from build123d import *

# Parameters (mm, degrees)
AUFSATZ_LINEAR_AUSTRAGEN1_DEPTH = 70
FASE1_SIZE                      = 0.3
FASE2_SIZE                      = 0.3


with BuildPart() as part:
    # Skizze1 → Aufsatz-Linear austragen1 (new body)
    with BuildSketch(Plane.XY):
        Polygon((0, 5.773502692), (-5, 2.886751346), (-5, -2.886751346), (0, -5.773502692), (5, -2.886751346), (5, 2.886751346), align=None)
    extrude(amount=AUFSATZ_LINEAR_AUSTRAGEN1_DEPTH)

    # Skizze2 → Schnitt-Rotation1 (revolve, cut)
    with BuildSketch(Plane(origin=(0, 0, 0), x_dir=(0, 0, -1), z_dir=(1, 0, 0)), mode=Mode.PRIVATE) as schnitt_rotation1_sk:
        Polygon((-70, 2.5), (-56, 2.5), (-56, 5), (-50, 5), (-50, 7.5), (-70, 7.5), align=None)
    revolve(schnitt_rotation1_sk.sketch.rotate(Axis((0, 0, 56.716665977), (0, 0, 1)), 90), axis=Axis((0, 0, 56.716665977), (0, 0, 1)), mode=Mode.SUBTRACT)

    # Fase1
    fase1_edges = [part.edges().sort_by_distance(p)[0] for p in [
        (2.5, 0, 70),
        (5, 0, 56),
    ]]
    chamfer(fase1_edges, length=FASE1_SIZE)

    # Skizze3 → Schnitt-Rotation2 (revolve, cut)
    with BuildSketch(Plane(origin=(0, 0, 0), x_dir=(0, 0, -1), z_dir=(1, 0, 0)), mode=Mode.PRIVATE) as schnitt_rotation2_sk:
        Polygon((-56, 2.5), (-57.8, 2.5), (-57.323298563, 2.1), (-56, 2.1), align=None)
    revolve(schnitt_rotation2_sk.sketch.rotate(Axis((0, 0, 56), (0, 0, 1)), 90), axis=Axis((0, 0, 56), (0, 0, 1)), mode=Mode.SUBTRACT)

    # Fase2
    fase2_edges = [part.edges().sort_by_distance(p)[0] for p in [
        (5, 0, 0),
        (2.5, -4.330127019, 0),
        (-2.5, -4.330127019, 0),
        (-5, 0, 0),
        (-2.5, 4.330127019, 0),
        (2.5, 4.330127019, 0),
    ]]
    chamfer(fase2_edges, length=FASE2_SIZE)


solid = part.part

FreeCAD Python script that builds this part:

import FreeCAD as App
import Part
import Sketcher
from FreeCAD import Vector
Q = App.Units.Quantity


def edges_at(feature, points):
    """Names of the edges that pass closest to the given points."""
    edges = feature.Shape.Edges
    near = lambda p: min(range(len(edges)), key=lambda i: edges[i].distToShape(Part.Vertex(*p))[0])
    return sorted({f"Edge{near(p) + 1}" for p in points})


def add_polygon(sketch, points):
    """Adds a closed chain of lines whose ends are joined by coincident constraints."""
    first, n = sketch.GeometryCount, len(points)
    for a, b in zip(points, points[1:] + points[:1]):
        sketch.addGeometry(Part.LineSegment(App.Vector(*a, 0), App.Vector(*b, 0)), False)
    for i in range(n):
        sketch.addConstraint(Sketcher.Constraint("Coincident", first + i, 2, first + (i + 1) % n, 1))

doc = App.newDocument("Part")
params = doc.addObject("Spreadsheet::Sheet", "Params")
for row, (alias, value) in enumerate([
    ("pad1_length", "70 mm"),
    ("sketch2_width", "5 mm"),
    ("sketch2_height", "14 mm"),
    ("sketch2_height2", "6 mm"),
    ("groove_angle", "360 deg"),
    ("chamfer_size", "0.3 mm"),
    ("sketch3_width", "0.4 mm"),
    ("sketch3_height", "1.8 mm"),
    ("groove2_angle", "360 deg"),
    ("chamfer2_size", "0.3 mm"),
], start=1):
    params.set(f"A{row}", alias)
    params.set(f"B{row}", "=" + value)
    params.setAlias(f"B{row}", alias)

body = doc.addObject("PartDesign::Body", "Body")

# Sketch on XY plane
sketch1 = body.newObject("Sketcher::SketchObject", "Sketch")
sketch1.AttachmentSupport = (doc.getObject("XY_Plane"), [""])
sketch1.MapMode = "FlatFace"
add_polygon(sketch1, [(0, 5.773503), (-5, 2.886751), (-5, -2.886751), (0, -5.773503), (5, -2.886751), (5, 2.886751)])  # lines 0-5
sketch1.addConstraint([
    Sketcher.Constraint("Vertical", 1),
    Sketcher.Constraint("Vertical", 4),
    Sketcher.Constraint("Symmetric", 0, 2, 3, 2, -1, 1),
    Sketcher.Constraint("Symmetric", 2, 2, 5, 2, -1, 1),
    Sketcher.Constraint("PointOnObject", 2, 2, -2),
    Sketcher.Constraint("Parallel", 2, 5),
    Sketcher.Constraint("Horizontal", 1, 2, 3, 2),
    Sketcher.Constraint("Angle", 0, Q("-150 deg")),
    Sketcher.Constraint("DistanceX", 0, 2, -1, 1, Q("5 mm")),
    Sketcher.Constraint("DistanceY", 1, 2, 1, 1, Q("5.773503 mm")),
])
pad1 = body.newObject("PartDesign::Pad", "Pad")
pad1.Profile = sketch1
pad1.setExpression("Length", "Params.pad1_length")

# Sketch on YZ plane
sketch2 = body.newObject("Sketcher::SketchObject", "Sketch001")
sketch2.AttachmentSupport = (doc.getObject("YZ_Plane"), [""])
sketch2.MapMode = "FlatFace"
add_polygon(sketch2, [(2.5, 70), (2.5, 56), (5, 56), (5, 50), (7.5, 50), (7.5, 70)])  # lines 0-5
sketch2.addConstraint([
    Sketcher.Constraint("Vertical", 0),
    Sketcher.Constraint("Horizontal", 1),
    Sketcher.Constraint("Vertical", 2),
    Sketcher.Constraint("Horizontal", 3),
    Sketcher.Constraint("Vertical", 4),
    Sketcher.Constraint("Horizontal", 5),
    Sketcher.Constraint("Equal", 1, 3),
    Sketcher.Constraint("DistanceX", 5, 2, 5, 1, Q("5 mm")),
    Sketcher.Constraint("DistanceY", 0, 2, 0, 1, Q("14 mm")),
    Sketcher.Constraint("DistanceY", 2, 2, 2, 1, Q("6 mm")),
    Sketcher.Constraint("DistanceY", -1, 1, 0, 2, Q("56 mm")),
    Sketcher.Constraint("DistanceX", -1, 1, 1, 2, Q("5 mm")),
])
sketch2.setExpression("Constraints[13]", "Params.sketch2_width")
sketch2.setExpression("Constraints[14]", "Params.sketch2_height")
sketch2.setExpression("Constraints[15]", "Params.sketch2_height2")
groove = body.newObject("PartDesign::Groove", "Groove")
groove.Profile = sketch2
groove.ReferenceAxis = (sketch2, ["V_Axis"])
groove.setExpression("Angle", "Params.groove_angle")
doc.recompute()

chamfer = body.newObject("PartDesign::Chamfer", "Chamfer")
chamfer.Base = (groove, edges_at(groove, [(2.5, 0, 70), (5, 0, 56)]))
chamfer.setExpression("Size", "Params.chamfer_size")

# Sketch on YZ plane
sketch3 = body.newObject("Sketcher::SketchObject", "Sketch002")
sketch3.AttachmentSupport = (doc.getObject("YZ_Plane"), [""])
sketch3.MapMode = "FlatFace"
add_polygon(sketch3, [(2.5, 56), (2.5, 57.8), (2.1, 57.323299), (2.1, 56)])  # lines 0-3
sketch3.addConstraint([
    Sketcher.Constraint("Vertical", 0),
    Sketcher.Constraint("Vertical", 2),
    Sketcher.Constraint("Horizontal", 3),
    Sketcher.Constraint("Angle", 1, Q("-130 deg")),
    Sketcher.Constraint("DistanceX", 3, 1, 3, 2, Q("0.4 mm")),
    Sketcher.Constraint("DistanceY", 0, 1, 0, 2, Q("1.8 mm")),
    Sketcher.Constraint("DistanceY", -1, 1, 2, 2, Q("56 mm")),
    Sketcher.Constraint("DistanceX", -1, 1, 0, 2, Q("2.5 mm")),
])
sketch3.setExpression("Constraints[8]", "Params.sketch3_width")
sketch3.setExpression("Constraints[9]", "Params.sketch3_height")
groove2 = body.newObject("PartDesign::Groove", "Groove001")
groove2.Profile = sketch3
groove2.ReferenceAxis = (sketch3, ["V_Axis"])
groove2.setExpression("Angle", "Params.groove2_angle")
doc.recompute()

chamfer2 = body.newObject("PartDesign::Chamfer", "Chamfer001")
chamfer2.Base = (groove2, edges_at(groove2, [
    (5, 0, 0),
    (2.5, -4.33, 0),
    (-2.5, -4.33, 0),
    (-5, 0, 0),
    (-2.5, 4.33, 0),
    (2.5, 4.33, 0),
]))
chamfer2.setExpression("Size", "Params.chamfer2_size")

doc.recompute()
